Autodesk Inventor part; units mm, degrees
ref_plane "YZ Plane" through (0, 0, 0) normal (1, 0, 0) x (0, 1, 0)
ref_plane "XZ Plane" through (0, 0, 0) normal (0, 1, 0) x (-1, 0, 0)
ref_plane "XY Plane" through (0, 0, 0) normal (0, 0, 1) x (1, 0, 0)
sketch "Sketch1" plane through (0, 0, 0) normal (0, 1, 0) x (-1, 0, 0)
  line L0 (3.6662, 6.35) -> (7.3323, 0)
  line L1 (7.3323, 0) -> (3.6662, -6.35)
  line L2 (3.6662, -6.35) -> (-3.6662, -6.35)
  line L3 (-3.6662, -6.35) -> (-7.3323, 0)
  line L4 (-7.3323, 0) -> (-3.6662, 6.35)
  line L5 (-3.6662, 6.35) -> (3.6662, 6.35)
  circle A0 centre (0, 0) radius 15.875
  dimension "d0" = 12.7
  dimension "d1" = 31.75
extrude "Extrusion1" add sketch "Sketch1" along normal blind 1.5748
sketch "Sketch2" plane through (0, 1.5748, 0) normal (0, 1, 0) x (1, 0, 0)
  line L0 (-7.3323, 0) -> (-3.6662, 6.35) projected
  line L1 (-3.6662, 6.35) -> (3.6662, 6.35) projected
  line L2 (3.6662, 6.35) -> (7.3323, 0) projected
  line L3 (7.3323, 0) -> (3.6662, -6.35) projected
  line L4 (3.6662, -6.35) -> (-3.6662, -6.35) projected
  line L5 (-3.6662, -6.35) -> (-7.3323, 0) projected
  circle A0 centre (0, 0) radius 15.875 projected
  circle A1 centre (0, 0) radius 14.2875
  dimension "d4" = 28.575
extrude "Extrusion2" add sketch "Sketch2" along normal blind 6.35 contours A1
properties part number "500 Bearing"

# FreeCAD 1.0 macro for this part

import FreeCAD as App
import Part
import Sketcher

V = App.Vector
Q = App.Units.Quantity

doc = App.newDocument("Part")
body = doc.addObject("PartDesign::Body", "Body")

# Sketch on XZ plane
sketch1 = body.newObject("Sketcher::SketchObject", "Sketch")
sketch1.AttachmentSupport = (doc.getObject("XZ_Plane"), [""])
sketch1.MapMode = "FlatFace"
sketch1.addGeometry([
    Part.Circle(V(0, 0, 0), V(0, 0, 1), 15.875),  # 0
    Part.LineSegment(V(3.6662, 6.35, 0), V(-3.6662, 6.35, 0)),  # 1
    Part.LineSegment(V(-3.6662, 6.35, 0), V(-7.3323, 0, 0)),  # 2
    Part.LineSegment(V(-7.3323, 0, 0), V(-3.6662, -6.35, 0)),  # 3
    Part.LineSegment(V(-3.6662, -6.35, 0), V(3.6662, -6.35, 0)),  # 4
    Part.LineSegment(V(3.6662, -6.35, 0), V(7.3323, 0, 0)),  # 5
    Part.LineSegment(V(7.3323, 0, 0), V(3.6662, 6.35, 0)),  # 6
], False)
sketch1.addConstraint([
    Sketcher.Constraint("Coincident", 1, 2, 2, 1),
    Sketcher.Constraint("Coincident", 2, 2, 3, 1),
    Sketcher.Constraint("Coincident", 3, 2, 4, 1),
    Sketcher.Constraint("Coincident", 4, 2, 5, 1),
    Sketcher.Constraint("Coincident", 5, 2, 6, 1),
    Sketcher.Constraint("Coincident", 6, 2, 1, 1),
    Sketcher.Constraint("Horizontal", 1),
    Sketcher.Constraint("Horizontal", 4),
    Sketcher.Constraint("Coincident", 0, 3, -1, 1),
    Sketcher.Constraint("Symmetric", 1, 2, 4, 2, -1, 1),
    Sketcher.Constraint("Symmetric", 2, 2, 5, 2, -1, 1),
    Sketcher.Constraint("PointOnObject", 2, 2, -1),
    Sketcher.Constraint("Parallel", 3, 6),
    Sketcher.Constraint("Vertical", 1, 2, 3, 2),
    Sketcher.Constraint("Diameter", 0, Q("1.25 in")),
    Sketcher.Constraint("DistanceY", 3, 2, 1, 2, Q("0.5 in")),
    Sketcher.Constraint("Angle", 2, Q("-119.9995 deg")),
    Sketcher.Constraint("DistanceX", 2, 2, 4, 2, Q("0.433 in")),
])
pad1 = body.newObject("PartDesign::Pad", "Pad")
pad1.Profile = sketch1
pad1.Length = Q("0.062 in")
pad1.Reversed = True

# Sketch on XZ plane
sketch2 = body.newObject("Sketcher::SketchObject", "Sketch001")
sketch2.AttachmentSupport = (doc.getObject("XZ_Plane"), [""])
sketch2.MapMode = "FlatFace"
sketch2.AttachmentOffset = App.Placement(V(0, 0, -0.062 * 25.4), App.Rotation())
sketch2.addGeometry([
    Part.Circle(V(0, 0, 0), V(0, 0, 1), 14.2875),  # 0
    Part.LineSegment(V(-3.6662, 6.35, 0), V(-7.3323, 0, 0)),  # 1
    Part.LineSegment(V(-7.3323, 0, 0), V(-3.6662, -6.35, 0)),  # 2
    Part.LineSegment(V(-3.6662, -6.35, 0), V(3.6662, -6.35, 0)),  # 3
    Part.LineSegment(V(3.6662, -6.35, 0), V(7.3323, 0, 0)),  # 4
    Part.LineSegment(V(7.3323, 0, 0), V(3.6662, 6.35, 0)),  # 5
    Part.LineSegment(V(3.6662, 6.35, 0), V(-3.6662, 6.35, 0)),  # 6
], False)
sketch2.addConstraint([
    Sketcher.Constraint("Coincident", 1, 2, 2, 1),
    Sketcher.Constraint("Coincident", 2, 2, 3, 1),
    Sketcher.Constraint("Coincident", 3, 2, 4, 1),
    Sketcher.Constraint("Coincident", 4, 2, 5, 1),
    Sketcher.Constraint("Coincident", 5, 2, 6, 1),
    Sketcher.Constraint("Coincident", 6, 2, 1, 1),
    Sketcher.Constraint("Horizontal", 3),
    Sketcher.Constraint("Horizontal", 6),
    Sketcher.Constraint("Coincident", 0, 3, -1, 1),
    Sketcher.Constraint("Symmetric", 1, 2, 4, 2, -1, 1),
    Sketcher.Constraint("Symmetric", 2, 2, 5, 2, -1, 1),
    Sketcher.Constraint("PointOnObject", 1, 2, -1),
    Sketcher.Constraint("Parallel", 1, 4),
    Sketcher.Constraint("Vertical", 3, 2, 5, 2),
    Sketcher.Constraint("Diameter", 0, Q("1.125 in")),
    Sketcher.Constraint("Angle", 1, Q("-119.9995 deg")),
    Sketcher.Constraint("DistanceY", 3, 2, 5, 2, Q("0.5 in")),
    Sketcher.Constraint("DistanceX", 1, 2, 3, 2, Q("0.433 in")),
])
pad2 = body.newObject("PartDesign::Pad", "Pad001")
pad2.Profile = sketch2
pad2.Length = Q("0.25 in")
pad2.Reversed = True

doc.recompute()
